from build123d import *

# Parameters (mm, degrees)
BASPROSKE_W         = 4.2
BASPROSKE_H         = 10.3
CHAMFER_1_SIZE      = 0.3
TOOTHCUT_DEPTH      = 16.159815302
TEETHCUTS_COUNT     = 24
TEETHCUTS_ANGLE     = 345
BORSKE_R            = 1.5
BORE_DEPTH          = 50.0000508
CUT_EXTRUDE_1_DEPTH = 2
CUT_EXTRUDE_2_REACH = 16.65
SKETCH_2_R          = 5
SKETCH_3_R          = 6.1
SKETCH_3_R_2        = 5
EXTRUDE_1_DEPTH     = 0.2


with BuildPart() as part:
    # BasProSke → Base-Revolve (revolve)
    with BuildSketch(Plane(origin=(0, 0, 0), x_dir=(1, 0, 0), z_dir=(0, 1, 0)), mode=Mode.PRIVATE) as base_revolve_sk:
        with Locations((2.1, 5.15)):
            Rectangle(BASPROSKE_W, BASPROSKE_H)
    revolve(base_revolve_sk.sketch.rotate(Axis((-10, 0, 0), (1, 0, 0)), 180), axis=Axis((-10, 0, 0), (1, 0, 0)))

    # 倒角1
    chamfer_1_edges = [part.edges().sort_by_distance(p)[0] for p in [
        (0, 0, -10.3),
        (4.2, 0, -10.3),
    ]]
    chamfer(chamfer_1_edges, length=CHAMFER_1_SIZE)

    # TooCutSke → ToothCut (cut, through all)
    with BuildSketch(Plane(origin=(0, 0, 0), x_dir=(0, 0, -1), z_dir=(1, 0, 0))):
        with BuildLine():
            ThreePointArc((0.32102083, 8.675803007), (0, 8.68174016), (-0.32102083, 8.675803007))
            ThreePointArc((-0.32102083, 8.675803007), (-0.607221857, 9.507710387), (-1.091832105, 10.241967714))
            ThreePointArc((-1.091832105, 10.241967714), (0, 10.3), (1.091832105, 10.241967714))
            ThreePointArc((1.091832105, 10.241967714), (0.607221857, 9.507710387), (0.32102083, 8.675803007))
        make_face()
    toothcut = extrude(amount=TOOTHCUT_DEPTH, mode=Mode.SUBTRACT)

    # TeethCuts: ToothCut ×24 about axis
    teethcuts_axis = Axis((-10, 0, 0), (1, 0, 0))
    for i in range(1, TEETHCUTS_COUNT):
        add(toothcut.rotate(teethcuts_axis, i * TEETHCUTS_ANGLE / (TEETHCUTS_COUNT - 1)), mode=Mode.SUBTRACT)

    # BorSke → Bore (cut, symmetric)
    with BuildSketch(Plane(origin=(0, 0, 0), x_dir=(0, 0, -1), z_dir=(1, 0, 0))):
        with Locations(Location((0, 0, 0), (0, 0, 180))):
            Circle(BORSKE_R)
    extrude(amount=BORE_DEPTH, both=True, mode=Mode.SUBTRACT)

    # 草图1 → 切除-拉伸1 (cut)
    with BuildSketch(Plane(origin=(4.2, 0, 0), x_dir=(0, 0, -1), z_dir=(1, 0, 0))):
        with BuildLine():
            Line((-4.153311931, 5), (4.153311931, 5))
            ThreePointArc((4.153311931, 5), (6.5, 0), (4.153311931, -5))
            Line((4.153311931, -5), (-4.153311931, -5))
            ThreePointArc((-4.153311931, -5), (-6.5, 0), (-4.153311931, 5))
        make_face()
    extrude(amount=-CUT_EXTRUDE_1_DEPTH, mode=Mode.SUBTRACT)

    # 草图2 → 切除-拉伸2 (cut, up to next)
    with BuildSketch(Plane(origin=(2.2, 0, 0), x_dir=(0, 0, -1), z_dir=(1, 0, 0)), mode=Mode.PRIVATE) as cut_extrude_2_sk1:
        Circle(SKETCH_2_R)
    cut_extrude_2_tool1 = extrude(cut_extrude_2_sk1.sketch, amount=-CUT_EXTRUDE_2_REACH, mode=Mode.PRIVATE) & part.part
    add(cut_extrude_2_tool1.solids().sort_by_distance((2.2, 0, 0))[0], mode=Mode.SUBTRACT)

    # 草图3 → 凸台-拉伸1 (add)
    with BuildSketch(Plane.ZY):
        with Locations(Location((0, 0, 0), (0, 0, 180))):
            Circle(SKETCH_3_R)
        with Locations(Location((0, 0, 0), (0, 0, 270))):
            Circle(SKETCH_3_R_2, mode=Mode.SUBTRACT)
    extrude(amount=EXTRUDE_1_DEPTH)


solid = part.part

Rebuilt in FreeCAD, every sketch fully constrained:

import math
import FreeCAD as App
import Part
import Sketcher
from FreeCAD import Vector
Q = App.Units.Quantity


def edges_at(feature, points):
    """Names of the edges that pass closest to the given points."""
    edges = feature.Shape.Edges
    near = lambda p: min(range(len(edges)), key=lambda i: edges[i].distToShape(Part.Vertex(*p))[0])
    return sorted({f"Edge{near(p) + 1}" for p in points})

doc = App.newDocument("Part")
params = doc.addObject("Spreadsheet::Sheet", "Params")
for row, (alias, value) in enumerate([
    ("sketch1_width", "4.2 mm"),
    ("sketch1_height", "10.3 mm"),
    ("revolution_angle", "360 deg"),
    ("chamfer_size", "0.3 mm"),
    ("sketch2_radius", "3.5 mm"),
    ("sketch2_radius2", "10.3 mm"),
    ("sketch3_diameter", "3 mm"),
    ("pocket2_length", "100.000102 mm"),
    ("sketch4_radius", "6.5 mm"),
    ("pocket3_length", "2 mm"),
    ("sketch5_diameter", "10 mm"),
    ("pocket4_length", "2.2 mm"),
    ("sketch6_diameter", "10 mm"),
    ("sketch6_diameter2", "12.2 mm"),
    ("pad1_length", "0.2 mm"),
], start=1):
    params.set(f"A{row}", alias)
    params.set(f"B{row}", "=" + value)
    params.setAlias(f"B{row}", alias)

body = doc.addObject("PartDesign::Body", "Body")

# Sketch on XZ plane
sketch1 = body.newObject("Sketcher::SketchObject", "Sketch")
sketch1.AttachmentSupport = (doc.getObject("XZ_Plane"), [""])
sketch1.MapMode = "FlatFace"
sketch1.addGeometry(Part.LineSegment(Vector(0, -10.3, 0), Vector(0, 0, 0)), False)
sketch1.addGeometry(Part.LineSegment(Vector(0, 0, 0), Vector(4.2, 0, 0)), False)
sketch1.addGeometry(Part.LineSegment(Vector(4.2, 0, 0), Vector(4.2, -10.3, 0)), False)
sketch1.addGeometry(Part.LineSegment(Vector(4.2, -10.3, 0), Vector(0, -10.3, 0)), False)
sketch1.addConstraint(Sketcher.Constraint("Coincident", 0, 2, 1, 1))
sketch1.addConstraint(Sketcher.Constraint("Coincident", 1, 2, 2, 1))
sketch1.addConstraint(Sketcher.Constraint("Coincident", 2, 2, 3, 1))
sketch1.addConstraint(Sketcher.Constraint("Coincident", 3, 2, 0, 1))
sketch1.addConstraint(Sketcher.Constraint("Vertical", 0))
sketch1.addConstraint(Sketcher.Constraint("Horizontal", 1))
sketch1.addConstraint(Sketcher.Constraint("Vertical", 2))
sketch1.addConstraint(Sketcher.Constraint("Horizontal", 3))
sketch1.addConstraint(Sketcher.Constraint("Coincident", 0, 2, -1, 1))
sketch1.addConstraint(Sketcher.Constraint("DistanceX", 1, 1, 1, 2, Q("4.2 mm")))
sketch1.addConstraint(Sketcher.Constraint("DistanceY", 0, 1, 0, 2, Q("10.3 mm")))
sketch1.setExpression("Constraints[9]", "Params.sketch1_width")
sketch1.setExpression("Constraints[10]", "Params.sketch1_height")
revolution = body.newObject("PartDesign::Revolution", "Revolution")
revolution.Profile = sketch1
revolution.ReferenceAxis = (sketch1, ["H_Axis"])
revolution.setExpression("Angle", "Params.revolution_angle")
doc.recompute()

chamfer = body.newObject("PartDesign::Chamfer", "Chamfer")
chamfer.Base = (revolution, edges_at(revolution, [(0, 0, -10.3), (4.2, 0, -10.3)]))
chamfer.setExpression("Size", "Params.chamfer_size")

# Sketch on YZ plane
sketch2 = body.newObject("Sketcher::SketchObject", "Sketch001")
sketch2.AttachmentSupport = (doc.getObject("YZ_Plane"), [""])
sketch2.MapMode = "FlatFace"
sketch2.addGeometry(Part.ArcOfCircle(Part.Circle(Vector(0, 0, 0), Vector(0, 0, 1), 8.7), math.radians(-2.12), math.radians(2.12)), False)
sketch2.addGeometry(Part.ArcOfCircle(Part.Circle(Vector(8, -3.7, 0), Vector(0, 0, 1), 3.5), math.radians(49), math.radians(78)), False)
sketch2.addGeometry(Part.ArcOfCircle(Part.Circle(Vector(0, 0, 0), Vector(0, 0, 1), 10.3), math.radians(-6.08), math.radians(6.08)), False)
sketch2.addGeometry(Part.ArcOfCircle(Part.Circle(Vector(8, 3.7, 0), Vector(0, 0, 1), 3.5), math.radians(-78), math.radians(-49)), False)
sketch2.addConstraint(Sketcher.Constraint("Coincident", 0, 1, 1, 2))
sketch2.addConstraint(Sketcher.Constraint("Coincident", 1, 1, 2, 1))
sketch2.addConstraint(Sketcher.Constraint("Coincident", 2, 2, 3, 2))
sketch2.addConstraint(Sketcher.Constraint("Coincident", 3, 1, 0, 2))
sketch2.addConstraint(Sketcher.Constraint("Coincident", 0, 3, -1, 1))
sketch2.addConstraint(Sketcher.Constraint("Coincident", 2, 3, -1, 1))
sketch2.addConstraint(Sketcher.Constraint("Equal", 1, 3))
sketch2.addConstraint(Sketcher.Constraint("Symmetric", 1, 3, 3, 3, -1))
sketch2.addConstraint(Sketcher.Constraint("Radius", 1, Q("3.5 mm")))
sketch2.addConstraint(Sketcher.Constraint("Radius", 2, Q("10.3 mm")))
sketch2.addConstraint(Sketcher.Constraint("Radius", 0, Q("8.681739 mm")))
sketch2.addConstraint(Sketcher.Constraint("DistanceX", 0, 3, 0, 1, Q("8.675802 mm")))
sketch2.addConstraint(Sketcher.Constraint("DistanceY", 1, 1, 0, 1, Q("0.770811 mm")))
sketch2.setExpression("Constraints[8]", "Params.sketch2_radius")
sketch2.setExpression("Constraints[9]", "Params.sketch2_radius2")
pocket1 = body.newObject("PartDesign::Pocket", "Pocket")
pocket1.Profile = sketch2
pocket1.Type = "ThroughAll"
pocket1.Reversed = True
doc.recompute()

polarpattern = body.newObject("PartDesign::PolarPattern", "PolarPattern")
polarpattern.Originals = [pocket1]
polarpattern.Axis = (doc.getObject("X_Axis"), [""])
polarpattern.Angle = 360
polarpattern.Occurrences = 24
body.Tip = polarpattern

# Sketch on YZ plane
sketch3 = body.newObject("Sketcher::SketchObject", "Sketch002")
sketch3.AttachmentSupport = (doc.getObject("YZ_Plane"), [""])
sketch3.MapMode = "FlatFace"
sketch3.addGeometry(Part.Circle(Vector(0, 0, 0), Vector(0, 0, 1), 1.5), False)
sketch3.addConstraint(Sketcher.Constraint("Coincident", 0, 3, -1, 1))
sketch3.addConstraint(Sketcher.Constraint("Diameter", 0, Q("3 mm")))
sketch3.setExpression("Constraints[1]", "Params.sketch3_diameter")
pocket2 = body.newObject("PartDesign::Pocket", "Pocket001")
pocket2.Profile = sketch3
pocket2.setExpression("Length", "Params.pocket2_length")
pocket2.Midplane = True

# Sketch on YZ plane
sketch4 = body.newObject("Sketcher::SketchObject", "Sketch003")
sketch4.AttachmentSupport = (doc.getObject("YZ_Plane"), [""])
sketch4.MapMode = "FlatFace"
sketch4.AttachmentOffset = App.Placement(Vector(0, 0, 4.2), App.Rotation())
sketch4.addGeometry(Part.LineSegment(Vector(5, -4, 0), Vector(5, 4, 0)), False)
sketch4.addGeometry(Part.ArcOfCircle(Part.Circle(Vector(0, 0, 0), Vector(0, 0, 1), 6), math.radians(40), math.radians(140)), False)
sketch4.addGeometry(Part.LineSegment(Vector(-5, 4, 0), Vector(-5, -4, 0)), False)
sketch4.addGeometry(Part.ArcOfCircle(Part.Circle(Vector(0, 0, 0), Vector(0, 0, 1), 6), math.radians(-140), math.radians(-40)), False)
sketch4.addConstraint(Sketcher.Constraint("Coincident", 0, 2, 1, 1))
sketch4.addConstraint(Sketcher.Constraint("Coincident", 1, 2, 2, 1))
sketch4.addConstraint(Sketcher.Constraint("Coincident", 2, 2, 3, 1))
sketch4.addConstraint(Sketcher.Constraint("Coincident", 3, 2, 0, 1))
sketch4.addConstraint(Sketcher.Constraint("Vertical", 0))
sketch4.addConstraint(Sketcher.Constraint("Vertical", 2))
sketch4.addConstraint(Sketcher.Constraint("Coincident", 1, 3, -1, 1))
sketch4.addConstraint(Sketcher.Constraint("Coincident", 3, 3, -1, 1))
sketch4.addConstraint(Sketcher.Constraint("Equal", 1, 3))
sketch4.addConstraint(Sketcher.Constraint("Horizontal", 0, 2, 1, 2))
sketch4.addConstraint(Sketcher.Constraint("Radius", 1, Q("6.5 mm")))
sketch4.addConstraint(Sketcher.Constraint("DistanceX", -1, 1, 0, 2, Q("5 mm")))
sketch4.setExpression("Constraints[10]", "Params.sketch4_radius")
pocket3 = body.newObject("PartDesign::Pocket", "Pocket002")
pocket3.Profile = sketch4
pocket3.setExpression("Length", "Params.pocket3_length")

# Sketch on YZ plane
sketch5 = body.newObject("Sketcher::SketchObject", "Sketch004")
sketch5.AttachmentSupport = (doc.getObject("YZ_Plane"), [""])
sketch5.MapMode = "FlatFace"
sketch5.AttachmentOffset = App.Placement(Vector(0, 0, 2.2), App.Rotation())
sketch5.addGeometry(Part.Circle(Vector(0, 0, 0), Vector(0, 0, 1), 5), False)
sketch5.addConstraint(Sketcher.Constraint("Coincident", 0, 3, -1, 1))
sketch5.addConstraint(Sketcher.Constraint("Diameter", 0, Q("10 mm")))
sketch5.setExpression("Constraints[1]", "Params.sketch5_diameter")
pocket4 = body.newObject("PartDesign::Pocket", "Pocket003")
pocket4.Profile = sketch5
pocket4.setExpression("Length", "Params.pocket4_length")

# Sketch on YZ plane
sketch6 = body.newObject("Sketcher::SketchObject", "Sketch005")
sketch6.AttachmentSupport = (doc.getObject("YZ_Plane"), [""])
sketch6.MapMode = "FlatFace"
sketch6.addGeometry(Part.Circle(Vector(0, 0, 0), Vector(0, 0, 1), 6), False)
sketch6.addGeometry(Part.Circle(Vector(0, 0, 0), Vector(0, 0, 1), 5), False)
sketch6.addConstraint(Sketcher.Constraint("Coincident", 0, 3, -1, 1))
sketch6.addConstraint(Sketcher.Constraint("Coincident", 1, 3, -1, 1))
sketch6.addConstraint(Sketcher.Constraint("Diameter", 1, Q("10 mm")))
sketch6.addConstraint(Sketcher.Constraint("Diameter", 0, Q("12.2 mm")))
sketch6.setExpression("Constraints[2]", "Params.sketch6_diameter")
sketch6.setExpression("Constraints[3]", "Params.sketch6_diameter2")
pad1 = body.newObject("PartDesign::Pad", "Pad")
pad1.Profile = sketch6
pad1.setExpression("Length", "Params.pad1_length")
pad1.Reversed = True

doc.recompute()
